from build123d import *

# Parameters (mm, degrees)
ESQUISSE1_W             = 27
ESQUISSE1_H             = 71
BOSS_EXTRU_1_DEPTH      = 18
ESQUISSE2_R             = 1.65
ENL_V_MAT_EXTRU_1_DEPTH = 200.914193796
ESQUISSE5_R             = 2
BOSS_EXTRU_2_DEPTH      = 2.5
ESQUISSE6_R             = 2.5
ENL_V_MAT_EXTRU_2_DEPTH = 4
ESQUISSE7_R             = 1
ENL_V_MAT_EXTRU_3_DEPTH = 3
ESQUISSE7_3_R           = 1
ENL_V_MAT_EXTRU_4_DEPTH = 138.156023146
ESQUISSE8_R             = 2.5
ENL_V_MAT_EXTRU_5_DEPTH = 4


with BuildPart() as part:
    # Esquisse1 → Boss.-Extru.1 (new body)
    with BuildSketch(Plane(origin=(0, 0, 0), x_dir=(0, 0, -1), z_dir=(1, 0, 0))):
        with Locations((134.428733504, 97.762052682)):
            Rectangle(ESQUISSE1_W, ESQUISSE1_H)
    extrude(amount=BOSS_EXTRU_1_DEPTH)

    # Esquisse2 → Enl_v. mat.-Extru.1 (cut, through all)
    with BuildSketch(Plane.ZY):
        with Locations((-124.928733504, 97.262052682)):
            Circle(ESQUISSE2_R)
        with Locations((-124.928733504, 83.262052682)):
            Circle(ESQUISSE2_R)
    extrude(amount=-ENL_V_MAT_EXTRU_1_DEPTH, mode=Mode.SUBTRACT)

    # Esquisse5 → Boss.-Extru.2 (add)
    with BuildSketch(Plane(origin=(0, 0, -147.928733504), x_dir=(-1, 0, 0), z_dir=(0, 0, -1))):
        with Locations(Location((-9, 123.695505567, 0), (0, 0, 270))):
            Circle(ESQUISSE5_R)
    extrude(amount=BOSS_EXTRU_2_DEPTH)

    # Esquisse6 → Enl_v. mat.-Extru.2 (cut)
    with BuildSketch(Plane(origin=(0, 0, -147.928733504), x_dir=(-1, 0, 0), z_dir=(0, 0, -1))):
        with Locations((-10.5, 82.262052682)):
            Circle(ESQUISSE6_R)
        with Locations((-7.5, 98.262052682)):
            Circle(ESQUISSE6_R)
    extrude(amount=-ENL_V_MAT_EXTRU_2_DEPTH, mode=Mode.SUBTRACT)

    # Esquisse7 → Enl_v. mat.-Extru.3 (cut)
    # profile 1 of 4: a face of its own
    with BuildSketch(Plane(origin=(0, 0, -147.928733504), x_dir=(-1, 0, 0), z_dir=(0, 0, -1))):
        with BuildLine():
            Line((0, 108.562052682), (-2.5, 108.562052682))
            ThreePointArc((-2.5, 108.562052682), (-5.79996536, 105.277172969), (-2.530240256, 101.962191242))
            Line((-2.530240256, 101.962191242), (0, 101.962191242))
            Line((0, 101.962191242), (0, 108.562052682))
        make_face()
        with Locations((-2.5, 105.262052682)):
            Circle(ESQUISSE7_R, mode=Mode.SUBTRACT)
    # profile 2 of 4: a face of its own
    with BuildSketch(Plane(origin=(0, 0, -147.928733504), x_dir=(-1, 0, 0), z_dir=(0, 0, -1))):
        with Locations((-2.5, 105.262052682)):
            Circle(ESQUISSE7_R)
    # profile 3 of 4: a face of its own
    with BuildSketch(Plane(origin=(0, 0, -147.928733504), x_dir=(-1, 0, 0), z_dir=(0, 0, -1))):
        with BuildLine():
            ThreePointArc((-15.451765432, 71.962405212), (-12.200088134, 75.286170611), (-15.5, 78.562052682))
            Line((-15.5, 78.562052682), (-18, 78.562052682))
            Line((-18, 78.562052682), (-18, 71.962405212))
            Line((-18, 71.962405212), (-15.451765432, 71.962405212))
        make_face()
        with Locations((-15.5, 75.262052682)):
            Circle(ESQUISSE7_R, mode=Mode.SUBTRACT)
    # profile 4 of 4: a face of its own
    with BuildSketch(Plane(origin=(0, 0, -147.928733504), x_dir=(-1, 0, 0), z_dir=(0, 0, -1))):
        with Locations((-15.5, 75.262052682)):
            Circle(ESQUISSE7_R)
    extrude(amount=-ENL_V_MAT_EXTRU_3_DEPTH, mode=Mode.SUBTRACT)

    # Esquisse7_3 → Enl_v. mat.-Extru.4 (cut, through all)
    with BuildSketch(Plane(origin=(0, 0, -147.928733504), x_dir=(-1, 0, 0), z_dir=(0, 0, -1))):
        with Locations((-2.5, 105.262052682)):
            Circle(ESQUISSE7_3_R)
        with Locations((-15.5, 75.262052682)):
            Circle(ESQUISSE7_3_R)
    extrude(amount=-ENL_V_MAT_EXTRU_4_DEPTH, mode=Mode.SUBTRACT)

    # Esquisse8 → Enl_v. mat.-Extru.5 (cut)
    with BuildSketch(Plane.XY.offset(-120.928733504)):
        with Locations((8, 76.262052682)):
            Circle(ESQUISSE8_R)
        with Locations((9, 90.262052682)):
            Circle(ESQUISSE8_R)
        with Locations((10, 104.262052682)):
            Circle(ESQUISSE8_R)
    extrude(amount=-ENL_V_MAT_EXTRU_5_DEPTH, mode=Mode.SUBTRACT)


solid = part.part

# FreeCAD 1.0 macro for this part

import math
import FreeCAD as App
import Part
import Sketcher

V = App.Vector
Q = App.Units.Quantity

doc = App.newDocument("Part")
body = doc.addObject("PartDesign::Body", "Body")

sketch1 = body.newObject("Sketcher::SketchObject", "Sketch")
sketch1.AttachmentSupport = (doc.getObject("YZ_Plane"), [""])
sketch1.MapMode = "FlatFace"
sketch1.addGeometry(Part.LineSegment(V(133.262053, -120.928734, 0), V(62.262053, -120.928734, 0)), False)
sketch1.addGeometry(Part.LineSegment(V(62.262053, -120.928734, 0), V(62.262053, -147.928734, 0)), False)
sketch1.addGeometry(Part.LineSegment(V(62.262053, -147.928734, 0), V(133.262053, -147.928734, 0)), False)
sketch1.addGeometry(Part.LineSegment(V(133.262053, -147.928734, 0), V(133.262053, -120.928734, 0)), False)
sketch1.addConstraint(Sketcher.Constraint("Coincident", 0, 2, 1, 1))
sketch1.addConstraint(Sketcher.Constraint("Coincident", 1, 2, 2, 1))
sketch1.addConstraint(Sketcher.Constraint("Coincident", 2, 2, 3, 1))
sketch1.addConstraint(Sketcher.Constraint("Coincident", 3, 2, 0, 1))
sketch1.addConstraint(Sketcher.Constraint("Horizontal", 0))
sketch1.addConstraint(Sketcher.Constraint("Vertical", 1))
sketch1.addConstraint(Sketcher.Constraint("Horizontal", 2))
sketch1.addConstraint(Sketcher.Constraint("Vertical", 3))
sketch1.addConstraint(Sketcher.Constraint("DistanceX", 0, 2, 0, 1, Q("71 mm")))
sketch1.addConstraint(Sketcher.Constraint("DistanceY", 1, 2, 1, 1, Q("27 mm")))
sketch1.addConstraint(Sketcher.Constraint("DistanceX", -1, 1, 0, 2, Q("62.262053 mm")))
sketch1.addConstraint(Sketcher.Constraint("DistanceY", 0, 2, -1, 1, Q("120.928734 mm")))
pad1 = body.newObject("PartDesign::Pad", "Pad")
pad1.Profile = sketch1
pad1.Length = 18

sketch2 = body.newObject("Sketcher::SketchObject", "Sketch001")
sketch2.AttachmentSupport = (doc.getObject("YZ_Plane"), [""])
sketch2.MapMode = "FlatFace"
sketch2.addGeometry(Part.Circle(V(97.262053, -124.928734, 0), V(0, 0, 1), 1.65), False)
sketch2.addGeometry(Part.Circle(V(83.262053, -124.928734, 0), V(0, 0, 1), 1.65), False)
sketch2.addConstraint(Sketcher.Constraint("Equal", 0, 1))
sketch2.addConstraint(Sketcher.Constraint("Horizontal", 0, 3, 1, 3))
sketch2.addConstraint(Sketcher.Constraint("Diameter", 0, Q("3.3 mm")))
sketch2.addConstraint(Sketcher.Constraint("DistanceX", 1, 3, 0, 3, Q("14 mm")))
sketch2.addConstraint(Sketcher.Constraint("DistanceX", -1, 1, 0, 3, Q("97.262053 mm")))
sketch2.addConstraint(Sketcher.Constraint("DistanceY", 0, 3, -1, 1, Q("124.928734 mm")))
pocket1 = body.newObject("PartDesign::Pocket", "Pocket")
pocket1.Profile = sketch2
pocket1.Type = "ThroughAll"
pocket1.Reversed = True

sketch3 = body.newObject("Sketcher::SketchObject", "Sketch002")
sketch3.AttachmentSupport = (doc.getObject("XY_Plane"), [""])
sketch3.MapMode = "FlatFace"
sketch3.AttachmentOffset = App.Placement(V(0, 0, -147.928734), App.Rotation())
sketch3.addGeometry(Part.Circle(V(9, 123.695506, 0), V(0, 0, 1), 2), False)
sketch3.addConstraint(Sketcher.Constraint("Diameter", 0, Q("4 mm")))
sketch3.addConstraint(Sketcher.Constraint("DistanceX", -1, 1, 0, 3, Q("9 mm")))
sketch3.addConstraint(Sketcher.Constraint("DistanceY", -1, 1, 0, 3, Q("123.695506 mm")))
pad2 = body.newObject("PartDesign::Pad", "Pad001")
pad2.Profile = sketch3
pad2.Length = 2.5
pad2.Reversed = True

sketch4 = body.newObject("Sketcher::SketchObject", "Sketch003")
sketch4.AttachmentSupport = (doc.getObject("XY_Plane"), [""])
sketch4.MapMode = "FlatFace"
sketch4.AttachmentOffset = App.Placement(V(0, 0, -147.928734), App.Rotation())
sketch4.addGeometry(Part.Circle(V(10.5, 82.262053, 0), V(0, 0, 1), 2.5), False)
sketch4.addGeometry(Part.Circle(V(7.5, 98.262053, 0), V(0, 0, 1), 2.5), False)
sketch4.addConstraint(Sketcher.Constraint("Equal", 0, 1))
sketch4.addConstraint(Sketcher.Constraint("Diameter", 0, Q("5 mm")))
sketch4.addConstraint(Sketcher.Constraint("DistanceX", 1, 3, 0, 3, Q("3 mm")))
sketch4.addConstraint(Sketcher.Constraint("DistanceY", 0, 3, 1, 3, Q("16 mm")))
sketch4.addConstraint(Sketcher.Constraint("DistanceX", -1, 1, 0, 3, Q("10.5 mm")))
sketch4.addConstraint(Sketcher.Constraint("DistanceY", -1, 1, 0, 3, Q("82.262053 mm")))
pocket2 = body.newObject("PartDesign::Pocket", "Pocket001")
pocket2.Profile = sketch4
pocket2.Length = 4
pocket2.Reversed = True

sketch5 = body.newObject("Sketcher::SketchObject", "Sketch004")
sketch5.AttachmentSupport = (doc.getObject("XY_Plane"), [""])
sketch5.MapMode = "FlatFace"
sketch5.AttachmentOffset = App.Placement(V(0, 0, -147.928734), App.Rotation())
sketch5.addGeometry(Part.LineSegment(V(0, 108.562053, 0), V(2.5, 108.562053, 0)), False)
sketch5.addGeometry(Part.ArcOfCircle(Part.Circle(V(2.5, 105.262053, 0), V(0, 0, 1), 3.3), math.radians(-89.474951), math.radians(90)), False)
sketch5.addGeometry(Part.LineSegment(V(2.53024, 101.962191, 0), V(0, 101.962191, 0)), False)
sketch5.addGeometry(Part.LineSegment(V(0, 101.962191, 0), V(0, 108.562053, 0)), False)
sketch5.addGeometry(Part.ArcOfCircle(Part.Circle(V(15.5, 75.262053, 0), V(0, 0, 1), 3.3), math.radians(90), math.radians(269.162504)), False)
sketch5.addGeometry(Part.LineSegment(V(15.5, 78.562053, 0), V(18, 78.562053, 0)), False)
sketch5.addGeometry(Part.LineSegment(V(18, 78.562053, 0), V(18, 71.962405, 0)), False)
sketch5.addGeometry(Part.LineSegment(V(18, 71.962405, 0), V(15.451765, 71.962405, 0)), False)
sketch5.addConstraint(Sketcher.Constraint("Tangent", 0, 2, 1, 2))
sketch5.addConstraint(Sketcher.Constraint("Coincident", 1, 1, 2, 1))
sketch5.addConstraint(Sketcher.Constraint("Coincident", 2, 2, 3, 1))
sketch5.addConstraint(Sketcher.Constraint("Coincident", 3, 2, 0, 1))
sketch5.addConstraint(Sketcher.Constraint("Tangent", 4, 1, 5, 1))
sketch5.addConstraint(Sketcher.Constraint("Coincident", 5, 2, 6, 1))
sketch5.addConstraint(Sketcher.Constraint("Coincident", 6, 2, 7, 1))
sketch5.addConstraint(Sketcher.Constraint("Coincident", 7, 2, 4, 2))
sketch5.addConstraint(Sketcher.Constraint("Horizontal", 0))
sketch5.addConstraint(Sketcher.Constraint("Horizontal", 2))
sketch5.addConstraint(Sketcher.Constraint("Vertical", 3))
sketch5.addConstraint(Sketcher.Constraint("Horizontal", 5))
sketch5.addConstraint(Sketcher.Constraint("Vertical", 6))
sketch5.addConstraint(Sketcher.Constraint("Horizontal", 7))
sketch5.addConstraint(Sketcher.Constraint("Equal", 1, 4))
sketch5.addConstraint(Sketcher.Constraint("PointOnObject", 2, 2, -2))
sketch5.addConstraint(Sketcher.Constraint("Equal", 0, 5))
sketch5.addConstraint(Sketcher.Constraint("Radius", 1, Q("3.3 mm")))
sketch5.addConstraint(Sketcher.Constraint("DistanceX", 0, 1, 0, 2, Q("2.5 mm")))
sketch5.addConstraint(Sketcher.Constraint("DistanceX", -1, 1, 5, 2, Q("18 mm")))
sketch5.addConstraint(Sketcher.Constraint("DistanceY", 4, 3, 1, 3, Q("30 mm")))
sketch5.addConstraint(Sketcher.Constraint("DistanceX", 2, 2, 2, 1, Q("2.53024 mm")))
sketch5.addConstraint(Sketcher.Constraint("DistanceX", 7, 2, 7, 1, Q("2.548235 mm")))
sketch5.addConstraint(Sketcher.Constraint("DistanceY", -1, 1, 1, 1, Q("101.962191 mm")))
pocket3 = body.newObject("PartDesign::Pocket", "Pocket002")
pocket3.Profile = sketch5
pocket3.Length = 3
pocket3.Reversed = True

sketch6 = body.newObject("Sketcher::SketchObject", "Sketch005")
sketch6.AttachmentSupport = (doc.getObject("XY_Plane"), [""])
sketch6.MapMode = "FlatFace"
sketch6.AttachmentOffset = App.Placement(V(0, 0, -147.928734), App.Rotation())
sketch6.addGeometry(Part.Circle(V(2.5, 105.262053, 0), V(0, 0, 1), 1), False)
sketch6.addGeometry(Part.Circle(V(15.5, 75.262053, 0), V(0, 0, 1), 1), False)
sketch6.addConstraint(Sketcher.Constraint("Equal", 0, 1))
sketch6.addConstraint(Sketcher.Constraint("Diameter", 0, Q("2 mm")))
sketch6.addConstraint(Sketcher.Constraint("DistanceX", 0, 3, 1, 3, Q("13 mm")))
sketch6.addConstraint(Sketcher.Constraint("DistanceY", 1, 3, 0, 3, Q("30 mm")))
sketch6.addConstraint(Sketcher.Constraint("DistanceX", -1, 1, 0, 3, Q("2.5 mm")))
sketch6.addConstraint(Sketcher.Constraint("DistanceY", -1, 1, 0, 3, Q("105.262053 mm")))
pocket4 = body.newObject("PartDesign::Pocket", "Pocket003")
pocket4.Profile = sketch6
pocket4.Type = "ThroughAll"
pocket4.Reversed = True

sketch7 = body.newObject("Sketcher::SketchObject", "Sketch006")
sketch7.AttachmentSupport = (doc.getObject("XY_Plane"), [""])
sketch7.MapMode = "FlatFace"
sketch7.AttachmentOffset = App.Placement(V(0, 0, -120.928734), App.Rotation())
sketch7.addGeometry(Part.Circle(V(8, 76.262053, 0), V(0, 0, 1), 2.5), False)
sketch7.addGeometry(Part.Circle(V(9, 90.262053, 0), V(0, 0, 1), 2.5), False)
sketch7.addGeometry(Part.Circle(V(10, 104.262053, 0), V(0, 0, 1), 2.5), False)
sketch7.addConstraint(Sketcher.Constraint("Equal", 0, 1))
sketch7.addConstraint(Sketcher.Constraint("Equal", 1, 2))
sketch7.addConstraint(Sketcher.Constraint("Diameter", 0, Q("5 mm")))
sketch7.addConstraint(Sketcher.Constraint("DistanceX", -1, 1, 0, 3, Q("8 mm")))
sketch7.addConstraint(Sketcher.Constraint("DistanceX", -1, 1, 1, 3, Q("9 mm")))
sketch7.addConstraint(Sketcher.Constraint("DistanceX", -1, 1, 2, 3, Q("10 mm")))
sketch7.addConstraint(Sketcher.Constraint("DistanceY", 0, 3, 1, 3, Q("14 mm")))
sketch7.addConstraint(Sketcher.Constraint("DistanceY", 1, 3, 2, 3, Q("14 mm")))
sketch7.addConstraint(Sketcher.Constraint("DistanceY", -1, 1, 0, 3, Q("76.262053 mm")))
pocket5 = body.newObject("PartDesign::Pocket", "Pocket004")
pocket5.Profile = sketch7
pocket5.Length = 4

doc.recompute()
